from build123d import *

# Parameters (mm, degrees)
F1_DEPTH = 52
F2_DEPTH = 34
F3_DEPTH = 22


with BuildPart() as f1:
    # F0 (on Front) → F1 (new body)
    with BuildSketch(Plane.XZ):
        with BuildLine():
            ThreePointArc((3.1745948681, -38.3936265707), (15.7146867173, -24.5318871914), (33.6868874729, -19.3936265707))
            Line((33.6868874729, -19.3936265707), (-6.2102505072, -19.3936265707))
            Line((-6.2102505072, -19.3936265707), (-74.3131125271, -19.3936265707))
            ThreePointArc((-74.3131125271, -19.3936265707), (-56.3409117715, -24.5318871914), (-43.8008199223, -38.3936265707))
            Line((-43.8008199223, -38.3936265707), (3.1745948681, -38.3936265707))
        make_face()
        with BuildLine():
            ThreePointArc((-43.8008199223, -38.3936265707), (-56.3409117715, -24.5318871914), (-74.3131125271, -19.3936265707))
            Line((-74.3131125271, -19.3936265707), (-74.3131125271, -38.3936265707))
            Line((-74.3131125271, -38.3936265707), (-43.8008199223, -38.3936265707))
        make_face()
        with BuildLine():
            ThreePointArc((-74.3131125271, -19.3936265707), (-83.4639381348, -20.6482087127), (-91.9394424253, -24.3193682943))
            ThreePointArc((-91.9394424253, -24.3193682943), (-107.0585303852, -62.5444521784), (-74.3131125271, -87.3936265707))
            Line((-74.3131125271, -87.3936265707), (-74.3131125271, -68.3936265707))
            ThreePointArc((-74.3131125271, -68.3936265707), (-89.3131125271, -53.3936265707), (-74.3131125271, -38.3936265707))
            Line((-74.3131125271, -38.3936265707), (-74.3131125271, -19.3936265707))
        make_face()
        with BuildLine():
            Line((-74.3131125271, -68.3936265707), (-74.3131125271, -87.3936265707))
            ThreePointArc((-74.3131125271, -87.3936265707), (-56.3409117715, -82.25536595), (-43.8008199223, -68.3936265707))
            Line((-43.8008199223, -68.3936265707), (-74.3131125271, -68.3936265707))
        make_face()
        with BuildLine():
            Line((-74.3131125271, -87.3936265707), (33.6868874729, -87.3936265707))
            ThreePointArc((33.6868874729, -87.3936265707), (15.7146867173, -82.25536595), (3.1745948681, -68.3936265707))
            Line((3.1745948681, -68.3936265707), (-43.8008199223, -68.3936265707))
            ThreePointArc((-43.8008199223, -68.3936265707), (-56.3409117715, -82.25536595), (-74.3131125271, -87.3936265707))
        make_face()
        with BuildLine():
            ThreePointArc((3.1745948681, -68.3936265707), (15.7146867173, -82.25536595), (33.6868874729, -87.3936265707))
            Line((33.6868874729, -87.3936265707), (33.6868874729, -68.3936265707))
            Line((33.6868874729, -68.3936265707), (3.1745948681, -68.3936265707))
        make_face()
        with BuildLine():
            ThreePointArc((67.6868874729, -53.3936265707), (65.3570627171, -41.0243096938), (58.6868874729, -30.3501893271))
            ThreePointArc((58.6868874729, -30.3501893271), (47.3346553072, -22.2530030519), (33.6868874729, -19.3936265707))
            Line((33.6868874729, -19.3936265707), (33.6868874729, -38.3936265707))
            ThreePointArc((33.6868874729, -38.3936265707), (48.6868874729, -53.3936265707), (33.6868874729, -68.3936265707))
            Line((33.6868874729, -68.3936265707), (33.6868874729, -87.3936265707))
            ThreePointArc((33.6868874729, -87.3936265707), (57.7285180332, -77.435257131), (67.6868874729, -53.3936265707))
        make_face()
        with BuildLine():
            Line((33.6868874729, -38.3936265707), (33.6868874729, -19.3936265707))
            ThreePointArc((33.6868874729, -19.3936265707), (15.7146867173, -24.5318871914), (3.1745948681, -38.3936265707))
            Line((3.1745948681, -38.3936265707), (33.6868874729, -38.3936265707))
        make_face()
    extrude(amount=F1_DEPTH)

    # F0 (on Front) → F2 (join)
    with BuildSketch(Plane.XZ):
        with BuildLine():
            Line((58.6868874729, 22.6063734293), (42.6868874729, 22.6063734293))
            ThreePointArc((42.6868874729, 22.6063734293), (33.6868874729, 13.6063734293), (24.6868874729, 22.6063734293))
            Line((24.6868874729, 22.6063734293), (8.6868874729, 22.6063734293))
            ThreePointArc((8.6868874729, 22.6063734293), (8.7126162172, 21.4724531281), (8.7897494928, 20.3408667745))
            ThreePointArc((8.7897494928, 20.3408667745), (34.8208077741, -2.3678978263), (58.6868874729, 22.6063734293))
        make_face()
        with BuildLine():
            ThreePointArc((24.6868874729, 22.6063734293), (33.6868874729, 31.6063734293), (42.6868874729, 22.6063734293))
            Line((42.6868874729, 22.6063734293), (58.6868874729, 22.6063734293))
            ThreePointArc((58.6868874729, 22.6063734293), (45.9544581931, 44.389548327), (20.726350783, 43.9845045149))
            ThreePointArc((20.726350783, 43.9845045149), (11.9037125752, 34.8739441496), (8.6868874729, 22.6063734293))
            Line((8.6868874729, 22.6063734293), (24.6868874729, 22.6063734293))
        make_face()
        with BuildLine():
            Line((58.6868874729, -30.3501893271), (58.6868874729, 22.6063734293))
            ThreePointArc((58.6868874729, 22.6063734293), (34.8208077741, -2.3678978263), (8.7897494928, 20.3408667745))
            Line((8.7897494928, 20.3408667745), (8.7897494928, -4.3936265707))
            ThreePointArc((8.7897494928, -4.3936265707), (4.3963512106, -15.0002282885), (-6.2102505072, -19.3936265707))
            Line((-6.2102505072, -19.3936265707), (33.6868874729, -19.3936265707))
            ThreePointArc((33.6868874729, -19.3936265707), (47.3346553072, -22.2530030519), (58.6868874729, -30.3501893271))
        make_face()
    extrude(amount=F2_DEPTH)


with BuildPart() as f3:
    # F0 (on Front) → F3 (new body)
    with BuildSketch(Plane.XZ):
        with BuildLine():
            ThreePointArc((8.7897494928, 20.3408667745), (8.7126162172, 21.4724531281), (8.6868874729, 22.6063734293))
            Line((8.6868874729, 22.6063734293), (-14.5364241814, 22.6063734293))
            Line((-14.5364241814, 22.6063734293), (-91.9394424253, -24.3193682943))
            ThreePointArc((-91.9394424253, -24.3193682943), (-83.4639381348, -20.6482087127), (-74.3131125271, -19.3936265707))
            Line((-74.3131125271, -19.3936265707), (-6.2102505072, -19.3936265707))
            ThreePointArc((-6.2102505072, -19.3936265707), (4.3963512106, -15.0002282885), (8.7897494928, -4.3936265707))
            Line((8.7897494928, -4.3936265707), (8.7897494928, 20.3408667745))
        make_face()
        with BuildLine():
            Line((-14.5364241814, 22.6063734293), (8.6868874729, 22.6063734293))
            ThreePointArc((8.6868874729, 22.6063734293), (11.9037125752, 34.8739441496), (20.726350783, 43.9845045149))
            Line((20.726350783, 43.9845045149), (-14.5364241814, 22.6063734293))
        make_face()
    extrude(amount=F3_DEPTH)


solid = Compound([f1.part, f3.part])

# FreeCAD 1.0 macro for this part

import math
import FreeCAD as App
import Part
import Sketcher
from FreeCAD import Vector
Q = App.Units.Quantity

doc = App.newDocument("Part")
body = doc.addObject("PartDesign::Body", "Body")

sketch1 = body.newObject("Sketcher::SketchObject", "Sketch")
sketch1.AttachmentSupport = (doc.getObject("XZ_Plane"), [""])
sketch1.MapMode = "FlatFace"
sketch1.addGeometry(Part.ArcOfCircle(Part.Circle(Vector(33.686887, -53.393627, 0), Vector(0, 0, 1), 34), math.radians(42.667925), math.radians(90)), False)
sketch1.addGeometry(Part.LineSegment(Vector(33.686887, -19.393627, 0), Vector(-74.313113, -19.393627, 0)), False)
sketch1.addGeometry(Part.ArcOfCircle(Part.Circle(Vector(-74.313113, -53.393627, 0), Vector(0, 0, 1), 34), math.radians(90), math.radians(121.226426)), False)
sketch1.addGeometry(Part.ArcOfCircle(Part.Circle(Vector(-74.313113, -53.393627, 0), Vector(0, 0, 1), 34), math.radians(121.226426), math.radians(270)), False)
sketch1.addGeometry(Part.LineSegment(Vector(-74.313113, -87.393627, 0), Vector(33.686887, -87.393627, 0)), False)
sketch1.addGeometry(Part.ArcOfCircle(Part.Circle(Vector(33.686887, -53.393627, 0), Vector(0, 0, 1), 34), math.radians(-90), math.radians(0)), False)
sketch1.addGeometry(Part.ArcOfCircle(Part.Circle(Vector(33.686887, -53.393627, 0), Vector(0, 0, 1), 34), math.radians(0), math.radians(42.667925)), False)
sketch1.addGeometry(Part.LineSegment(Vector(-74.313113, -38.393627, 0), Vector(33.686887, -38.393627, 0)), False)
sketch1.addGeometry(Part.ArcOfCircle(Part.Circle(Vector(33.686887, -53.393627, 0), Vector(0, 0, 1), 15), math.radians(-90), math.radians(90)), False)
sketch1.addGeometry(Part.LineSegment(Vector(33.686887, -68.393627, 0), Vector(-74.313113, -68.393627, 0)), False)
sketch1.addGeometry(Part.ArcOfCircle(Part.Circle(Vector(-74.313113, -53.393627, 0), Vector(0, 0, 1), 15), math.radians(90), math.radians(270)), False)
sketch1.addConstraint(Sketcher.Constraint("Tangent", 0, 2, 1, 1))
sketch1.addConstraint(Sketcher.Constraint("Tangent", 1, 2, 2, 1))
sketch1.addConstraint(Sketcher.Constraint("Tangent", 2, 2, 3, 1))
sketch1.addConstraint(Sketcher.Constraint("Tangent", 3, 2, 4, 1))
sketch1.addConstraint(Sketcher.Constraint("Tangent", 4, 2, 5, 1))
sketch1.addConstraint(Sketcher.Constraint("Tangent", 5, 2, 6, 1))
sketch1.addConstraint(Sketcher.Constraint("Tangent", 6, 2, 0, 1))
sketch1.addConstraint(Sketcher.Constraint("Tangent", 7, 2, 8, 2))
sketch1.addConstraint(Sketcher.Constraint("Tangent", 8, 1, 9, 1))
sketch1.addConstraint(Sketcher.Constraint("Tangent", 9, 2, 10, 2))
sketch1.addConstraint(Sketcher.Constraint("Tangent", 10, 1, 7, 1))
sketch1.addConstraint(Sketcher.Constraint("Horizontal", 1))
sketch1.addConstraint(Sketcher.Constraint("Horizontal", 4))
sketch1.addConstraint(Sketcher.Constraint("Horizontal", 7))
sketch1.addConstraint(Sketcher.Constraint("Horizontal", 9))
sketch1.addConstraint(Sketcher.Constraint("Coincident", 5, 3, 0, 3))
sketch1.addConstraint(Sketcher.Constraint("Coincident", 8, 3, 0, 3))
sketch1.addConstraint(Sketcher.Constraint("Coincident", 10, 3, 2, 3))
sketch1.addConstraint(Sketcher.Constraint("Horizontal", 10, 3, 5, 2))
sketch1.addConstraint(Sketcher.Constraint("Radius", 0, Q("34 mm")))
sketch1.addConstraint(Sketcher.Constraint("Radius", 8, Q("15 mm")))
sketch1.addConstraint(Sketcher.Constraint("DistanceX", 1, 2, 1, 1, Q("108 mm")))
sketch1.addConstraint(Sketcher.Constraint("DistanceX", 6, 2, 5, 2, Q("9 mm")))
sketch1.addConstraint(Sketcher.Constraint("DistanceY", 2, 2, -1, 1, Q("24.319368 mm")))
sketch1.addConstraint(Sketcher.Constraint("DistanceY", 6, 2, -1, 1, Q("30.350189 mm")))
sketch1.addConstraint(Sketcher.Constraint("DistanceX", -1, 1, 0, 3, Q("33.686887 mm")))
pad1 = body.newObject("PartDesign::Pad", "Pad")
pad1.Profile = sketch1
pad1.Length = 52

sketch2 = body.newObject("Sketcher::SketchObject", "Sketch001")
sketch2.AttachmentSupport = (doc.getObject("XZ_Plane"), [""])
sketch2.MapMode = "FlatFace"
sketch2.addGeometry(Part.ArcOfCircle(Part.Circle(Vector(33.686887, 22.606373, 0), Vector(0, 0, 1), 25), math.radians(180), math.radians(185.199292)), False)
sketch2.addGeometry(Part.LineSegment(Vector(8.789749, 20.340867, 0), Vector(8.789749, -4.393627, 0)), False)
sketch2.addGeometry(Part.ArcOfCircle(Part.Circle(Vector(-6.210251, -4.393627, 0), Vector(0, 0, 1), 15), math.radians(-90), math.radians(0)), False)
sketch2.addGeometry(Part.LineSegment(Vector(-6.210251, -19.393627, 0), Vector(33.686887, -19.393627, 0)), False)
sketch2.addGeometry(Part.ArcOfCircle(Part.Circle(Vector(33.686887, -53.393627, 0), Vector(0, 0, 1), 34), math.radians(42.667925), math.radians(90)), False)
sketch2.addGeometry(Part.LineSegment(Vector(58.686887, -30.350189, 0), Vector(58.686887, 22.606373, 0)), False)
sketch2.addGeometry(Part.ArcOfCircle(Part.Circle(Vector(33.686887, 22.606373, 0), Vector(0, 0, 1), 25), math.radians(0), math.radians(121.226426)), False)
sketch2.addGeometry(Part.ArcOfCircle(Part.Circle(Vector(33.686887, 22.606373, 0), Vector(0, 0, 1), 25), math.radians(121.226426), math.radians(180)), False)
sketch2.addGeometry(Part.Circle(Vector(33.686887, 22.606373, 0), Vector(0, 0, 1), 9), False)
sketch2.addConstraint(Sketcher.Constraint("Coincident", 0, 2, 1, 1))
sketch2.addConstraint(Sketcher.Constraint("Tangent", 1, 2, 2, 2))
sketch2.addConstraint(Sketcher.Constraint("Tangent", 2, 1, 3, 1))
sketch2.addConstraint(Sketcher.Constraint("Tangent", 3, 2, 4, 2))
sketch2.addConstraint(Sketcher.Constraint("Coincident", 4, 1, 5, 1))
sketch2.addConstraint(Sketcher.Constraint("Tangent", 5, 2, 6, 1))
sketch2.addConstraint(Sketcher.Constraint("Tangent", 6, 2, 7, 1))
sketch2.addConstraint(Sketcher.Constraint("Tangent", 7, 2, 0, 1))
sketch2.addConstraint(Sketcher.Constraint("Vertical", 1))
sketch2.addConstraint(Sketcher.Constraint("Horizontal", 3))
sketch2.addConstraint(Sketcher.Constraint("Vertical", 5))
sketch2.addConstraint(Sketcher.Constraint("Coincident", 6, 3, 0, 3))
sketch2.addConstraint(Sketcher.Constraint("Coincident", 8, 3, 0, 3))
sketch2.addConstraint(Sketcher.Constraint("Horizontal", 5, 2, 7, 2))
sketch2.addConstraint(Sketcher.Constraint("Vertical", 0, 3, 4, 3))
sketch2.addConstraint(Sketcher.Constraint("Diameter", 8, Q("18 mm")))
sketch2.addConstraint(Sketcher.Constraint("Radius", 0, Q("25 mm")))
sketch2.addConstraint(Sketcher.Constraint("Radius", 2, Q("15 mm")))
sketch2.addConstraint(Sketcher.Constraint("Radius", 4, Q("34 mm")))
sketch2.addConstraint(Sketcher.Constraint("DistanceY", 2, 3, 0, 3, Q("27 mm")))
sketch2.addConstraint(Sketcher.Constraint("DistanceX", 0, 2, 6, 2, Q("11.936601 mm")))
sketch2.addConstraint(Sketcher.Constraint("DistanceX", 3, 1, 3, 2, Q("39.897138 mm")))
sketch2.addConstraint(Sketcher.Constraint("DistanceX", 2, 3, -1, 1, Q("6.210251 mm")))
sketch2.addConstraint(Sketcher.Constraint("DistanceY", 4, 1, -1, 1, Q("30.350189 mm")))
pad2 = body.newObject("PartDesign::Pad", "Pad001")
pad2.Profile = sketch2
pad2.Length = 34
body2 = doc.addObject("PartDesign::Body", "Body001")

sketch3 = body2.newObject("Sketcher::SketchObject", "Sketch002")
sketch3.AttachmentSupport = (doc.getObject("XZ_Plane001"), [""])
sketch3.MapMode = "FlatFace"
sketch3.addGeometry(Part.ArcOfCircle(Part.Circle(Vector(33.686887, 22.606373, 0), Vector(0, 0, 1), 25), math.radians(180), math.radians(185.199292)), False)
sketch3.addGeometry(Part.ArcOfCircle(Part.Circle(Vector(33.686887, 22.606373, 0), Vector(0, 0, 1), 25), math.radians(121.226426), math.radians(180)), False)
sketch3.addGeometry(Part.LineSegment(Vector(20.726351, 43.984505, 0), Vector(-91.939442, -24.319368, 0)), False)
sketch3.addGeometry(Part.ArcOfCircle(Part.Circle(Vector(-74.313113, -53.393627, 0), Vector(0, 0, 1), 34), math.radians(90), math.radians(121.226426)), False)
sketch3.addGeometry(Part.LineSegment(Vector(-74.313113, -19.393627, 0), Vector(-6.210251, -19.393627, 0)), False)
sketch3.addGeometry(Part.ArcOfCircle(Part.Circle(Vector(-6.210251, -4.393627, 0), Vector(0, 0, 1), 15), math.radians(-90), math.radians(0)), False)
sketch3.addGeometry(Part.LineSegment(Vector(8.789749, -4.393627, 0), Vector(8.789749, 20.340867, 0)), False)
sketch3.addConstraint(Sketcher.Constraint("Tangent", 0, 1, 1, 2))
sketch3.addConstraint(Sketcher.Constraint("Tangent", 1, 1, 2, 1))
sketch3.addConstraint(Sketcher.Constraint("Tangent", 2, 2, 3, 2))
sketch3.addConstraint(Sketcher.Constraint("Tangent", 3, 1, 4, 1))
sketch3.addConstraint(Sketcher.Constraint("Tangent", 4, 2, 5, 1))
sketch3.addConstraint(Sketcher.Constraint("Tangent", 5, 2, 6, 1))
sketch3.addConstraint(Sketcher.Constraint("Coincident", 6, 2, 0, 2))
sketch3.addConstraint(Sketcher.Constraint("Horizontal", 4))
sketch3.addConstraint(Sketcher.Constraint("Vertical", 6))
sketch3.addConstraint(Sketcher.Constraint("Equal", 0, 1))
sketch3.addConstraint(Sketcher.Constraint("Horizontal", 1, 3, 0, 1))
sketch3.addConstraint(Sketcher.Constraint("Radius", 0, Q("25 mm")))
sketch3.addConstraint(Sketcher.Constraint("Radius", 3, Q("34 mm")))
sketch3.addConstraint(Sketcher.Constraint("Radius", 5, Q("15 mm")))
sketch3.addConstraint(Sketcher.Constraint("DistanceX", 3, 3, 0, 3, Q("108 mm")))
sketch3.addConstraint(Sketcher.Constraint("DistanceY", 3, 3, 0, 3, Q("76 mm")))
sketch3.addConstraint(Sketcher.Constraint("DistanceX", 5, 3, 1, 1, Q("26.936601 mm")))
sketch3.addConstraint(Sketcher.Constraint("DistanceX", 5, 3, -1, 1, Q("6.210251 mm")))
sketch3.addConstraint(Sketcher.Constraint("DistanceY", 2, 2, -1, 1, Q("24.319368 mm")))
pad3 = body2.newObject("PartDesign::Pad", "Pad002")
pad3.Profile = sketch3
pad3.Length = 22

doc.recompute()
